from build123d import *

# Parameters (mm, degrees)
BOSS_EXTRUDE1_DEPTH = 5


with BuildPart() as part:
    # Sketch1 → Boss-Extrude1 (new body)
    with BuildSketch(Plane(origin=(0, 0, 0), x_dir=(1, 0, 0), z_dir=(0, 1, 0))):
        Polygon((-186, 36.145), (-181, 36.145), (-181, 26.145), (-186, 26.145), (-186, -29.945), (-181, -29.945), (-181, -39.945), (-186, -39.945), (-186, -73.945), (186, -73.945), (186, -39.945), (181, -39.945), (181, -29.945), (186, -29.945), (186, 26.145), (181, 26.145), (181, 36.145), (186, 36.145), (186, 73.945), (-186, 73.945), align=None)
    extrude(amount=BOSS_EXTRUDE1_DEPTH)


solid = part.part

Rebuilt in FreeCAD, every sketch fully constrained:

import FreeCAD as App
import Part
import Sketcher

V = App.Vector

doc = App.newDocument("Part")
params = doc.addObject("Spreadsheet::Sheet", "Params")
for row, (alias, value) in enumerate([
    ("sketch1_width", "5 mm"),
    ("sketch1_width2", "372 mm"),
    ("sketch1_height", "10 mm"),
    ("sketch1_height2", "34 mm"),
    ("sketch1_height3", "37.8 mm"),
    ("pad1_length", "5 mm"),
], start=1):
    params.set(f"A{row}", alias)
    params.set(f"B{row}", "=" + value)
    params.setAlias(f"B{row}", alias)

body = doc.addObject("PartDesign::Body", "Body")

sketch1 = body.newObject("Sketcher::SketchObject", "Sketch")
sketch1.AttachmentSupport = (doc.getObject("XZ_Plane"), [""])
sketch1.MapMode = "FlatFace"
sketch1.addGeometry(Part.LineSegment(V(-186, -36.145, 0), V(-181, -36.145, 0)), False)
sketch1.addGeometry(Part.LineSegment(V(-181, -36.145, 0), V(-181, -26.145, 0)), False)
sketch1.addGeometry(Part.LineSegment(V(-181, -26.145, 0), V(-186, -26.145, 0)), False)
sketch1.addGeometry(Part.LineSegment(V(-186, -26.145, 0), V(-186, 29.945, 0)), False)
sketch1.addGeometry(Part.LineSegment(V(-186, 29.945, 0), V(-181, 29.945, 0)), False)
sketch1.addGeometry(Part.LineSegment(V(-181, 29.945, 0), V(-181, 39.945, 0)), False)
sketch1.addGeometry(Part.LineSegment(V(-181, 39.945, 0), V(-186, 39.945, 0)), False)
sketch1.addGeometry(Part.LineSegment(V(-186, 39.945, 0), V(-186, 73.945, 0)), False)
sketch1.addGeometry(Part.LineSegment(V(-186, 73.945, 0), V(186, 73.945, 0)), False)
sketch1.addGeometry(Part.LineSegment(V(186, 73.945, 0), V(186, 39.945, 0)), False)
sketch1.addGeometry(Part.LineSegment(V(186, 39.945, 0), V(181, 39.945, 0)), False)
sketch1.addGeometry(Part.LineSegment(V(181, 39.945, 0), V(181, 29.945, 0)), False)
sketch1.addGeometry(Part.LineSegment(V(181, 29.945, 0), V(186, 29.945, 0)), False)
sketch1.addGeometry(Part.LineSegment(V(186, 29.945, 0), V(186, -26.145, 0)), False)
sketch1.addGeometry(Part.LineSegment(V(186, -26.145, 0), V(181, -26.145, 0)), False)
sketch1.addGeometry(Part.LineSegment(V(181, -26.145, 0), V(181, -36.145, 0)), False)
sketch1.addGeometry(Part.LineSegment(V(181, -36.145, 0), V(186, -36.145, 0)), False)
sketch1.addGeometry(Part.LineSegment(V(186, -36.145, 0), V(186, -73.945, 0)), False)
sketch1.addGeometry(Part.LineSegment(V(186, -73.945, 0), V(-186, -73.945, 0)), False)
sketch1.addGeometry(Part.LineSegment(V(-186, -73.945, 0), V(-186, -36.145, 0)), False)
sketch1.addConstraint(Sketcher.Constraint("Coincident", 0, 2, 1, 1))
sketch1.addConstraint(Sketcher.Constraint("Coincident", 1, 2, 2, 1))
sketch1.addConstraint(Sketcher.Constraint("Coincident", 2, 2, 3, 1))
sketch1.addConstraint(Sketcher.Constraint("Coincident", 3, 2, 4, 1))
sketch1.addConstraint(Sketcher.Constraint("Coincident", 4, 2, 5, 1))
sketch1.addConstraint(Sketcher.Constraint("Coincident", 5, 2, 6, 1))
sketch1.addConstraint(Sketcher.Constraint("Coincident", 6, 2, 7, 1))
sketch1.addConstraint(Sketcher.Constraint("Coincident", 7, 2, 8, 1))
sketch1.addConstraint(Sketcher.Constraint("Coincident", 8, 2, 9, 1))
sketch1.addConstraint(Sketcher.Constraint("Coincident", 9, 2, 10, 1))
sketch1.addConstraint(Sketcher.Constraint("Coincident", 10, 2, 11, 1))
sketch1.addConstraint(Sketcher.Constraint("Coincident", 11, 2, 12, 1))
sketch1.addConstraint(Sketcher.Constraint("Coincident", 12, 2, 13, 1))
sketch1.addConstraint(Sketcher.Constraint("Coincident", 13, 2, 14, 1))
sketch1.addConstraint(Sketcher.Constraint("Coincident", 14, 2, 15, 1))
sketch1.addConstraint(Sketcher.Constraint("Coincident", 15, 2, 16, 1))
sketch1.addConstraint(Sketcher.Constraint("Coincident", 16, 2, 17, 1))
sketch1.addConstraint(Sketcher.Constraint("Coincident", 17, 2, 18, 1))
sketch1.addConstraint(Sketcher.Constraint("Coincident", 18, 2, 19, 1))
sketch1.addConstraint(Sketcher.Constraint("Coincident", 19, 2, 0, 1))
sketch1.addConstraint(Sketcher.Constraint("Horizontal", 0))
sketch1.addConstraint(Sketcher.Constraint("Vertical", 1))
sketch1.addConstraint(Sketcher.Constraint("Horizontal", 2))
sketch1.addConstraint(Sketcher.Constraint("Vertical", 3))
sketch1.addConstraint(Sketcher.Constraint("Horizontal", 4))
sketch1.addConstraint(Sketcher.Constraint("Vertical", 5))
sketch1.addConstraint(Sketcher.Constraint("Horizontal", 6))
sketch1.addConstraint(Sketcher.Constraint("Vertical", 7))
sketch1.addConstraint(Sketcher.Constraint("Horizontal", 8))
sketch1.addConstraint(Sketcher.Constraint("Vertical", 9))
sketch1.addConstraint(Sketcher.Constraint("Horizontal", 10))
sketch1.addConstraint(Sketcher.Constraint("Vertical", 11))
sketch1.addConstraint(Sketcher.Constraint("Horizontal", 12))
sketch1.addConstraint(Sketcher.Constraint("Vertical", 13))
sketch1.addConstraint(Sketcher.Constraint("Horizontal", 14))
sketch1.addConstraint(Sketcher.Constraint("Vertical", 15))
sketch1.addConstraint(Sketcher.Constraint("Horizontal", 16))
sketch1.addConstraint(Sketcher.Constraint("Vertical", 17))
sketch1.addConstraint(Sketcher.Constraint("Horizontal", 18))
sketch1.addConstraint(Sketcher.Constraint("Vertical", 19))
sketch1.addConstraint(Sketcher.Constraint("Symmetric", 7, 2, 17, 2, -1, 1))
sketch1.addConstraint(Sketcher.Constraint("Symmetric", 6, 2, 9, 2, -2))
sketch1.addConstraint(Sketcher.Constraint("Symmetric", 4, 2, 11, 2, -2))
sketch1.addConstraint(Sketcher.Constraint("Symmetric", 2, 2, 13, 2, -2))
sketch1.addConstraint(Sketcher.Constraint("Symmetric", 0, 2, 15, 2, -2))
sketch1.addConstraint(Sketcher.Constraint("Vertical", 1, 2, 4, 2))
sketch1.addConstraint(Sketcher.Constraint("Vertical", 3, 2, 6, 2))
sketch1.addConstraint(Sketcher.Constraint("Vertical", 7, 2, 18, 2))
sketch1.addConstraint(Sketcher.Constraint("Equal", 1, 5))
sketch1.addConstraint(Sketcher.Constraint("DistanceX", 0, 1, 0, 2, 5.0))
sketch1.addConstraint(Sketcher.Constraint("DistanceX", 8, 1, 8, 2, 372.0))
sketch1.addConstraint(Sketcher.Constraint("DistanceY", 1, 1, 1, 2, 10.0))
sketch1.addConstraint(Sketcher.Constraint("DistanceY", 7, 1, 7, 2, 34.0))
sketch1.addConstraint(Sketcher.Constraint("DistanceY", 17, 2, 17, 1, 37.8))
sketch1.addConstraint(Sketcher.Constraint("DistanceY", 3, 1, 3, 2, 56.09))
sketch1.setExpression("Constraints[49]", "Params.sketch1_width")
sketch1.setExpression("Constraints[50]", "Params.sketch1_width2")
sketch1.setExpression("Constraints[51]", "Params.sketch1_height")
sketch1.setExpression("Constraints[52]", "Params.sketch1_height2")
sketch1.setExpression("Constraints[53]", "Params.sketch1_height3")
pad1 = body.newObject("PartDesign::Pad", "Pad")
pad1.Profile = sketch1
pad1.setExpression("Length", "Params.pad1_length")
pad1.Reversed = True

doc.recompute()
